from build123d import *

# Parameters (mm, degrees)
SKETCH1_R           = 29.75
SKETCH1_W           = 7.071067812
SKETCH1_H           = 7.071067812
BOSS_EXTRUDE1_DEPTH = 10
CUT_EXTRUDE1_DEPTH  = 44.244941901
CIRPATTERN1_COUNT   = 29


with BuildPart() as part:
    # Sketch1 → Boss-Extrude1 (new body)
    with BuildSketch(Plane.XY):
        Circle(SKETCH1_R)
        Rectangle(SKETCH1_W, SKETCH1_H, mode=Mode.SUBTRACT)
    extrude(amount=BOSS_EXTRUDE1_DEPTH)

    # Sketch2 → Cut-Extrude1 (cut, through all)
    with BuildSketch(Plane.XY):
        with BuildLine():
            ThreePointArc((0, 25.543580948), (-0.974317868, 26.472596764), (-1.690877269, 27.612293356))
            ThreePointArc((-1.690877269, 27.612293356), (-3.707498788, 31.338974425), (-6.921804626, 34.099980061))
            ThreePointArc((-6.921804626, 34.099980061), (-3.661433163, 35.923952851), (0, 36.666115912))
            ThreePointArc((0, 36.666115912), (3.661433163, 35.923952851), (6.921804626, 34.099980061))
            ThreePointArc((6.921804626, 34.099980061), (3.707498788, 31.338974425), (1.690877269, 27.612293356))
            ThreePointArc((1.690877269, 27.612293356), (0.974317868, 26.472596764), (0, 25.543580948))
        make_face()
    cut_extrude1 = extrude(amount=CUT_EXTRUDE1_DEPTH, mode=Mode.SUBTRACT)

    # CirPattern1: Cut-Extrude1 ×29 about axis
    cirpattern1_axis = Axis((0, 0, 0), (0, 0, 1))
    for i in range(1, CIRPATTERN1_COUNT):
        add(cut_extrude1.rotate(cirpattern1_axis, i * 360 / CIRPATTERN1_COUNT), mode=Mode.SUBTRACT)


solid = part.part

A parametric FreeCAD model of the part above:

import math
import FreeCAD as App
import Part
import Sketcher

V = App.Vector


def add_polygon(sketch, points):
    """Adds a closed chain of lines whose ends are joined by coincident constraints."""
    first, n = sketch.GeometryCount, len(points)
    for a, b in zip(points, points[1:] + points[:1]):
        sketch.addGeometry(Part.LineSegment(App.Vector(*a, 0), App.Vector(*b, 0)), False)
    for i in range(n):
        sketch.addConstraint(Sketcher.Constraint("Coincident", first + i, 2, first + (i + 1) % n, 1))

doc = App.newDocument("Part")
body = doc.addObject("PartDesign::Body", "Body")

# Sketch on XY plane
sketch1 = body.newObject("Sketcher::SketchObject", "Sketch")
sketch1.AttachmentSupport = (doc.getObject("XY_Plane"), [""])
sketch1.MapMode = "FlatFace"
sketch1.addGeometry(Part.Circle(V(0, 0, 0), V(0, 0, 1), 30), False)  # 0
add_polygon(sketch1, [(4, -4), (-4, -4), (-4, 4), (4, 4)])  # lines 1-4
sketch1.addConstraint(Sketcher.Constraint("Horizontal", 1))
sketch1.addConstraint(Sketcher.Constraint("Vertical", 2))
sketch1.addConstraint(Sketcher.Constraint("Horizontal", 3))
sketch1.addConstraint(Sketcher.Constraint("Vertical", 4))
sketch1.addConstraint(Sketcher.Constraint("Coincident", 0, 3, -1, 1))
sketch1.addConstraint(Sketcher.Constraint("Symmetric", 1, 2, 3, 2, -1, 1))
sketch1.addConstraint(Sketcher.Constraint("Equal", 3, 2))
sketch1.addConstraint(Sketcher.Constraint("Diameter", 0, 59.5))
sketch1.addConstraint(Sketcher.Constraint("DistanceX", 1, 2, 1, 1, 7.071068))
pad1 = body.newObject("PartDesign::Pad", "Pad")
pad1.Profile = sketch1
pad1.Length = 10

# Sketch on XY plane
sketch2 = body.newObject("Sketcher::SketchObject", "Sketch001")
sketch2.AttachmentSupport = (doc.getObject("XY_Plane"), [""])
sketch2.MapMode = "FlatFace"
sketch2.addGeometry(Part.ArcOfCircle(Part.Circle(V(3.2, 29.9, 0), V(0, 0, 1), 5.4), math.radians(-155), math.radians(-127)), False)
sketch2.addGeometry(Part.ArcOfCircle(Part.Circle(V(-3.2, 29.9, 0), V(0, 0, 1), 5.4), math.radians(-53), math.radians(-25)), False)
sketch2.addGeometry(Part.ArcOfCircle(Part.Circle(V(12.8, 24, 0), V(0, 0, 1), 11.7), math.radians(120), math.radians(162)), False)
sketch2.addGeometry(Part.ArcOfCircle(Part.Circle(V(-0.5, 24.6, 0), V(0, 0, 1), 12.1), math.radians(52), math.radians(87)), False)
sketch2.addGeometry(Part.ArcOfCircle(Part.Circle(V(0.5, 24.6, 0), V(0, 0, 1), 12.1), math.radians(93), math.radians(128)), False)
sketch2.addGeometry(Part.ArcOfCircle(Part.Circle(V(-12.8, 24, 0), V(0, 0, 1), 11.7), math.radians(18), math.radians(60)), False)
sketch2.addConstraint(Sketcher.Constraint("Coincident", 0, 2, 1, 1))
sketch2.addConstraint(Sketcher.Constraint("Coincident", 1, 2, 2, 2))
sketch2.addConstraint(Sketcher.Constraint("Coincident", 2, 1, 3, 1))
sketch2.addConstraint(Sketcher.Constraint("Coincident", 3, 2, 4, 1))
sketch2.addConstraint(Sketcher.Constraint("Coincident", 4, 2, 5, 2))
sketch2.addConstraint(Sketcher.Constraint("Coincident", 5, 1, 0, 1))
sketch2.addConstraint(Sketcher.Constraint("Equal", 0, 1))
sketch2.addConstraint(Sketcher.Constraint("Equal", 3, 4))
sketch2.addConstraint(Sketcher.Constraint("Equal", 2, 5))
sketch2.addConstraint(Sketcher.Constraint("Symmetric", 0, 3, 1, 3, -2))
sketch2.addConstraint(Sketcher.Constraint("Symmetric", 3, 3, 4, 3, -2))
sketch2.addConstraint(Sketcher.Constraint("Symmetric", 2, 3, 5, 3, -2))
sketch2.addConstraint(Sketcher.Constraint("Radius", 0, 5.444091))
sketch2.addConstraint(Sketcher.Constraint("Radius", 3, 12.096879))
sketch2.addConstraint(Sketcher.Constraint("DistanceX", 1, 2, 0, 3, 1.550001))
sketch2.addConstraint(Sketcher.Constraint("Radius", 2, 11.670416))
sketch2.addConstraint(Sketcher.Constraint("DistanceY", 2, 3, 3, 3, 0.5677))
sketch2.addConstraint(Sketcher.Constraint("DistanceY", 0, 2, 2, 1, 8.556399))
sketch2.addConstraint(Sketcher.Constraint("DistanceX", -1, 1, 0, 3, 3.240879))
sketch2.addConstraint(Sketcher.Constraint("DistanceY", -1, 1, 0, 3, 29.917919))
sketch2.addConstraint(Sketcher.Constraint("DistanceX", -1, 1, 2, 3, 12.79264))
pocket1 = body.newObject("PartDesign::Pocket", "Pocket")
pocket1.Profile = sketch2
pocket1.Type = "ThroughAll"
pocket1.Reversed = True
doc.recompute()

polarpattern = body.newObject("PartDesign::PolarPattern", "PolarPattern")
polarpattern.Originals = [pocket1]
polarpattern.Axis = (doc.getObject("Z_Axis"), [""])
polarpattern.Angle = 360
polarpattern.Occurrences = 29
body.Tip = polarpattern

doc.recompute()
